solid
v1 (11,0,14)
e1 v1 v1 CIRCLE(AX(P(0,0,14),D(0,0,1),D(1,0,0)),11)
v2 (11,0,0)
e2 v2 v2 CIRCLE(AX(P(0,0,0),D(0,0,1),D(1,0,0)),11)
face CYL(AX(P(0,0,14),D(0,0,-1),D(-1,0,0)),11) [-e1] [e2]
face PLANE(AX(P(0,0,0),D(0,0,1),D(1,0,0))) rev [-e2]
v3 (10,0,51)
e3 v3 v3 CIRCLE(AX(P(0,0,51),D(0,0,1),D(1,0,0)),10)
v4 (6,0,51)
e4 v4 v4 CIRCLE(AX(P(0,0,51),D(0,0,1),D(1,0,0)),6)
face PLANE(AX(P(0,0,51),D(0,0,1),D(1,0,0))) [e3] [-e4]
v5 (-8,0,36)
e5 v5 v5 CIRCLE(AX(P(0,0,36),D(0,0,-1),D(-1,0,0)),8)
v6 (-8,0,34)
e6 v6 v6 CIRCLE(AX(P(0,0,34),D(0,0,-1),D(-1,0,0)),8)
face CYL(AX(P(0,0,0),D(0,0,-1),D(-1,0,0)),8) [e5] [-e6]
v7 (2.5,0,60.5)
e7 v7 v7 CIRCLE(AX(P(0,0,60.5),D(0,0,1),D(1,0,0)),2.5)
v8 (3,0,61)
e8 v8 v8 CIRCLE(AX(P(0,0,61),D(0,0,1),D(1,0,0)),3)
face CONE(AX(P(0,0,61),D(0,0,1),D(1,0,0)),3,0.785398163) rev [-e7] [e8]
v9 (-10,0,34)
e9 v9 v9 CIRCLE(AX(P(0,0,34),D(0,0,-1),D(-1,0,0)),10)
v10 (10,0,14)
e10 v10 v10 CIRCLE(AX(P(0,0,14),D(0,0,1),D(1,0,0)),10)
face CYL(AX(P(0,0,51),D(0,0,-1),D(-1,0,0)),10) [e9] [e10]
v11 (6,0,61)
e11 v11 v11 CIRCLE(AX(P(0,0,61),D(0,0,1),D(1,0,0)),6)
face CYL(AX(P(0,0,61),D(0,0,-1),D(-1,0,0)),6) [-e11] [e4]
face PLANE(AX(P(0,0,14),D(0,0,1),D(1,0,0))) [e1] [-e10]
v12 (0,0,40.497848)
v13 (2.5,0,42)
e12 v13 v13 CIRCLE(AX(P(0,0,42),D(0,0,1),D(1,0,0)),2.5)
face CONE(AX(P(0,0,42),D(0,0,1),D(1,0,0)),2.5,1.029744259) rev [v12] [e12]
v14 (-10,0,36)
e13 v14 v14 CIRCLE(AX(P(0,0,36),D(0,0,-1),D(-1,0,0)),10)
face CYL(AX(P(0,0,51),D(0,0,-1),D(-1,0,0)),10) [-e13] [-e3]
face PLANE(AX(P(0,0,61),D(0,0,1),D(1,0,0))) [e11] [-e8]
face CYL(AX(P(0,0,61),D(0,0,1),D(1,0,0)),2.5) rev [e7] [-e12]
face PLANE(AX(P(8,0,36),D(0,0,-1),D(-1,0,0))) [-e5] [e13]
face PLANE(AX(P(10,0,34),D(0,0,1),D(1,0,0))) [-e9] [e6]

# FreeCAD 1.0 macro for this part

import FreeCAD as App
import Part
import Sketcher
Q = App.Units.Quantity

doc = App.newDocument("Part")
params = doc.addObject("Spreadsheet::Sheet", "Params")
for row, (alias, value) in enumerate([
    ("sketch1_diameter", "22 mm"),
    ("pad1_length", "14 mm"),
    ("sketch2_diameter", "20 mm"),
    ("pad2_length", "37 mm"),
    ("sketch3_width", "2 mm"),
    ("groove_angle", "360 deg"),
    ("sketch4_diameter", "12 mm"),
    ("pad3_length", "10 mm"),
    ("sketch5_diameter", "5 mm"),
    ("hole_diameter", "5 mm"),
    ("hole_depth", "19 mm"),
    ("hole_csink_diameter", "6 mm"),
], start=1):
    params.set(f"A{row}", alias)
    params.set(f"B{row}", "=" + value)
    params.setAlias(f"B{row}", alias)

body = doc.addObject("PartDesign::Body", "Body")

# Sketch on XY plane
sketch1 = body.newObject("Sketcher::SketchObject", "Sketch")
sketch1.AttachmentSupport = (doc.getObject("XY_Plane"), [""])
sketch1.MapMode = "FlatFace"
sketch1.addGeometry(Part.Circle(App.Vector(0, 0, 0), App.Vector(0, 0, 1), 11), False)
sketch1.addConstraint([
    Sketcher.Constraint("Coincident", 0, 3, -1, 1),
    Sketcher.Constraint("Diameter", 0, Q("22 mm")),
])
sketch1.setExpression("Constraints[1]", "Params.sketch1_diameter")
pad1 = body.newObject("PartDesign::Pad", "Pad")
pad1.Profile = sketch1
pad1.setExpression("Length", "Params.pad1_length")

# Sketch on XY plane
sketch2 = body.newObject("Sketcher::SketchObject", "Sketch001")
sketch2.AttachmentSupport = (doc.getObject("XY_Plane"), [""])
sketch2.MapMode = "FlatFace"
sketch2.AttachmentOffset = App.Placement(App.Vector(0, 0, 14), App.Rotation())
sketch2.addGeometry(Part.Circle(App.Vector(0, 0, 0), App.Vector(0, 0, 1), 10), False)
sketch2.addConstraint([
    Sketcher.Constraint("Coincident", 0, 3, -1, 1),
    Sketcher.Constraint("Diameter", 0, Q("20 mm")),
])
sketch2.setExpression("Constraints[1]", "Params.sketch2_diameter")
pad2 = body.newObject("PartDesign::Pad", "Pad001")
pad2.Profile = sketch2
pad2.setExpression("Length", "Params.pad2_length")

# Sketch on XZ plane
sketch3 = body.newObject("Sketcher::SketchObject", "Sketch002")
sketch3.AttachmentSupport = (doc.getObject("XZ_Plane"), [""])
sketch3.MapMode = "FlatFace"
sketch3.addGeometry([
    Part.LineSegment(App.Vector(8, 34, 0), App.Vector(8, 36, 0)),
    Part.LineSegment(App.Vector(8, 36, 0), App.Vector(10, 36, 0)),
    Part.LineSegment(App.Vector(10, 36, 0), App.Vector(10, 34, 0)),
    Part.LineSegment(App.Vector(10, 34, 0), App.Vector(8, 34, 0)),
], False)
sketch3.addConstraint([
    Sketcher.Constraint("Coincident", 0, 2, 1, 1),
    Sketcher.Constraint("Coincident", 1, 2, 2, 1),
    Sketcher.Constraint("Coincident", 2, 2, 3, 1),
    Sketcher.Constraint("Coincident", 3, 2, 0, 1),
    Sketcher.Constraint("Vertical", 0),
    Sketcher.Constraint("Horizontal", 1),
    Sketcher.Constraint("Vertical", 2),
    Sketcher.Constraint("Horizontal", 3),
    Sketcher.Constraint("Equal", 3, 0),
    Sketcher.Constraint("DistanceX", 1, 1, 1, 2, Q("2 mm")),
    Sketcher.Constraint("DistanceX", -1, 1, 0, 2, Q("8 mm")),
    Sketcher.Constraint("DistanceY", -1, 1, 0, 2, Q("36 mm")),
])
sketch3.setExpression("Constraints[9]", "Params.sketch3_width")
groove = body.newObject("PartDesign::Groove", "Groove")
groove.Profile = sketch3
groove.ReferenceAxis = (sketch3, ["V_Axis"])
groove.setExpression("Angle", "Params.groove_angle")

# Sketch on XY plane
sketch4 = body.newObject("Sketcher::SketchObject", "Sketch003")
sketch4.AttachmentSupport = (doc.getObject("XY_Plane"), [""])
sketch4.MapMode = "FlatFace"
sketch4.AttachmentOffset = App.Placement(App.Vector(0, 0, 51), App.Rotation())
sketch4.addGeometry(Part.Circle(App.Vector(0, 0, 0), App.Vector(0, 0, 1), 6), False)
sketch4.addConstraint([
    Sketcher.Constraint("Coincident", 0, 3, -1, 1),
    Sketcher.Constraint("Diameter", 0, Q("12 mm")),
])
sketch4.setExpression("Constraints[1]", "Params.sketch4_diameter")
pad3 = body.newObject("PartDesign::Pad", "Pad002")
pad3.Profile = sketch4
pad3.setExpression("Length", "Params.pad3_length")

# Sketch on XY plane
sketch5 = body.newObject("Sketcher::SketchObject", "Sketch004")
sketch5.AttachmentSupport = (doc.getObject("XY_Plane"), [""])
sketch5.MapMode = "FlatFace"
sketch5.AttachmentOffset = App.Placement(App.Vector(0, 0, 61), App.Rotation())
sketch5.addGeometry(Part.Circle(App.Vector(0, 0, 0), App.Vector(0, 0, 1), 2.5), False)
sketch5.addConstraint([
    Sketcher.Constraint("Coincident", 0, 3, -1, 1),
    Sketcher.Constraint("Diameter", 0, Q("5 mm")),
])
sketch5.setExpression("Constraints[1]", "Params.sketch5_diameter")
doc.recompute()
hole = body.newObject("PartDesign::Hole", "Hole")
hole.Profile = sketch5
hole.ThreadType = "None"
hole.setExpression("Diameter", "Params.hole_diameter")
hole.DepthType = "Dimension"
hole.setExpression("Depth", "Params.hole_depth")
hole.DrillPoint = "Angled"
hole.DrillPointAngle = 118
hole.HoleCutType = "Countersink"
hole.setExpression("HoleCutDiameter", "Params.hole_csink_diameter")
hole.HoleCutCountersinkAngle = 90

doc.recompute()
